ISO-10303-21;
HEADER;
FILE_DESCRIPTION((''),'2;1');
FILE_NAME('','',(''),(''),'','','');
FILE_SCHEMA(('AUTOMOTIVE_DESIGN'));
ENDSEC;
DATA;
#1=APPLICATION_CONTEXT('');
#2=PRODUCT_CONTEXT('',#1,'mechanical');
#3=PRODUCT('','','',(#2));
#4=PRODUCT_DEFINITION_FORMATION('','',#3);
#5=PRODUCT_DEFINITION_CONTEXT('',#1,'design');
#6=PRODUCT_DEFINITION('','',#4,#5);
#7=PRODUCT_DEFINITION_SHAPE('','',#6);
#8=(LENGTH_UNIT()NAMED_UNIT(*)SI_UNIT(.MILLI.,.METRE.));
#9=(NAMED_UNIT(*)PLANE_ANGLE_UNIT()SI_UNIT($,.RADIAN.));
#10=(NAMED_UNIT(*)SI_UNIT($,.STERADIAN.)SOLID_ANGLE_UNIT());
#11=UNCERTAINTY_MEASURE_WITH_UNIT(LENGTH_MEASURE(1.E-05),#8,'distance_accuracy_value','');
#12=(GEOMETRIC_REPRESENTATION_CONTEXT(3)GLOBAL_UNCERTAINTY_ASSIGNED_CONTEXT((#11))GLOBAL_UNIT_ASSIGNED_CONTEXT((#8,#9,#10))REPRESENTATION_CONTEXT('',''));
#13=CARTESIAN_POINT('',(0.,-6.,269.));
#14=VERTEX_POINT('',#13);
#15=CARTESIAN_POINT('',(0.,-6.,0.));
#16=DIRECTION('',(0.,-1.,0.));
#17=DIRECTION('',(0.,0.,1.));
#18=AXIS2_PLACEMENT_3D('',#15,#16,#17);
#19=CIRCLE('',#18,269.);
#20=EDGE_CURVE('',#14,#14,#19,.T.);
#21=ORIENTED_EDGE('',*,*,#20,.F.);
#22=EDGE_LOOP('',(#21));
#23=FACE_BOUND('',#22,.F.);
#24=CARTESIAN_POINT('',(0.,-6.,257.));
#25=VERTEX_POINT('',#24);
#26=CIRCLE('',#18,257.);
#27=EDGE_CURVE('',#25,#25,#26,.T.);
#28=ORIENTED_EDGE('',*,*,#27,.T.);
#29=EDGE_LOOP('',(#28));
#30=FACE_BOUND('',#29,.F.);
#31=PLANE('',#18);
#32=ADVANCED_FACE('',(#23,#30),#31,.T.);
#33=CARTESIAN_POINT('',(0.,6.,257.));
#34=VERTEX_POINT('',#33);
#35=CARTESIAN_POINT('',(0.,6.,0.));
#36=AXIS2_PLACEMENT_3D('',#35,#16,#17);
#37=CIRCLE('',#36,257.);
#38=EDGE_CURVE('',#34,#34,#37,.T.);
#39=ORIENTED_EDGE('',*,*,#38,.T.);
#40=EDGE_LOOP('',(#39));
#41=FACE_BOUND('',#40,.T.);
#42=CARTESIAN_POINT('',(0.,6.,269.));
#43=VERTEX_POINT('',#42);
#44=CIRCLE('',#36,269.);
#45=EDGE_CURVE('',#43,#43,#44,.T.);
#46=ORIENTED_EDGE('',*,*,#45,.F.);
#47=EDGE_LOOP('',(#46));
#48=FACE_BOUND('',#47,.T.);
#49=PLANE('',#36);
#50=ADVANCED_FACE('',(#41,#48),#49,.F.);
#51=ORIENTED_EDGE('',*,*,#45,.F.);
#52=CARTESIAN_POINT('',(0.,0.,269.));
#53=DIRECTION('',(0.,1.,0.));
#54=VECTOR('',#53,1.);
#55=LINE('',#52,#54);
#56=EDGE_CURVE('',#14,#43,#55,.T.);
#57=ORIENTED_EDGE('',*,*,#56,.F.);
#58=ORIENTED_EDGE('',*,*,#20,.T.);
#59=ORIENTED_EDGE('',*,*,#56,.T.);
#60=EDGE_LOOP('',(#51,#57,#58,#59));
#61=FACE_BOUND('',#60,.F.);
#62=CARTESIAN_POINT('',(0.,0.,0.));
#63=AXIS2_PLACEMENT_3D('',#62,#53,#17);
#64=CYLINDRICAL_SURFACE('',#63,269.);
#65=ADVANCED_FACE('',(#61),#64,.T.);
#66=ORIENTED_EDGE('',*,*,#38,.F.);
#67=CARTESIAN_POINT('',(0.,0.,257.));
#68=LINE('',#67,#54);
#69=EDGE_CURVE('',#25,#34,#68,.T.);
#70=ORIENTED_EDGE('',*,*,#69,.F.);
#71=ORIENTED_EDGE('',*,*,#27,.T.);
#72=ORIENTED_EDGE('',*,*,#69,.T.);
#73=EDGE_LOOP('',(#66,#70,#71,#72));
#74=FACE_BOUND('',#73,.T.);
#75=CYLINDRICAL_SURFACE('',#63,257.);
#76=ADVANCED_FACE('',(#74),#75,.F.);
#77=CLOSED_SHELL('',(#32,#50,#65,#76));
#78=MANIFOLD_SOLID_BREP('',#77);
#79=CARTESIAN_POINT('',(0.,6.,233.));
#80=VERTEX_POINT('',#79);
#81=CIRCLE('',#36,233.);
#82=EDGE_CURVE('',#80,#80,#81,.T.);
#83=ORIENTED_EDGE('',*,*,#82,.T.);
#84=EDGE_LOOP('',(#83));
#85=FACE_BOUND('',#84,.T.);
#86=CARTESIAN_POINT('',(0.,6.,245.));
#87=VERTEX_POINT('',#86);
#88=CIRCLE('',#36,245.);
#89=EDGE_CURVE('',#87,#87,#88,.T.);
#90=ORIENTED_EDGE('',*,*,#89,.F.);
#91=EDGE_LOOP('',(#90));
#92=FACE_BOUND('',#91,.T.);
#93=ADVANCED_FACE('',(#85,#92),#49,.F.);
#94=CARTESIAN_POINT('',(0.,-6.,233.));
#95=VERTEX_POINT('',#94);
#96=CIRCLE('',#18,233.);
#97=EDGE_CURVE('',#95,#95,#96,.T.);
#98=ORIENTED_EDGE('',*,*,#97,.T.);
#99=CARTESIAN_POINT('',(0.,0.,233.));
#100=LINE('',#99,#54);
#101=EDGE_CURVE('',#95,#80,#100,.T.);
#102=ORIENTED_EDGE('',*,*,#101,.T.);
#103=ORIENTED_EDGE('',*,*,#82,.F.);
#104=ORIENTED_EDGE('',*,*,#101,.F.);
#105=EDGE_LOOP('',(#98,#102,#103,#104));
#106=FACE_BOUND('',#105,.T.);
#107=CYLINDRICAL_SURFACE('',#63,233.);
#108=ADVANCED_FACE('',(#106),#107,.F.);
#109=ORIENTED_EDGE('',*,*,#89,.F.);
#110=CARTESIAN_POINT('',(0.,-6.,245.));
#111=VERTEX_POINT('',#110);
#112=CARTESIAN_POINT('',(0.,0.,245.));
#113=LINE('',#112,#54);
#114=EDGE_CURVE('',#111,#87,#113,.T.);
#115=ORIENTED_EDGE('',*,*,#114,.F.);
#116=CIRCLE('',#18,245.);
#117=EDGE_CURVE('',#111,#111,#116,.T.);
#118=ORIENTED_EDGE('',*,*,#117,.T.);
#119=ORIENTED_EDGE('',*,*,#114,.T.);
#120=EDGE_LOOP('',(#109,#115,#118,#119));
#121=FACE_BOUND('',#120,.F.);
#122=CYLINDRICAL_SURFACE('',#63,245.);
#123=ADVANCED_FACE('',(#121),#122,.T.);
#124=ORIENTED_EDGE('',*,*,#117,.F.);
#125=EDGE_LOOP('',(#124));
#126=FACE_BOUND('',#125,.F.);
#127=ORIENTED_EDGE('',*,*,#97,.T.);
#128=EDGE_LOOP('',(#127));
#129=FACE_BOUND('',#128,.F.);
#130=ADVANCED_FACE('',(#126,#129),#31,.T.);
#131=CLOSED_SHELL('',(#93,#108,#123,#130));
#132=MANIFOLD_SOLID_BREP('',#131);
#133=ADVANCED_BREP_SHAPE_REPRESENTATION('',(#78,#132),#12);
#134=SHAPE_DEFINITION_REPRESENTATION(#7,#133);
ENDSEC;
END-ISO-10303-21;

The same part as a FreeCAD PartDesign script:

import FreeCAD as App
import Part
import Sketcher
from FreeCAD import Vector
Q = App.Units.Quantity

doc = App.newDocument("Part")
body = doc.addObject("PartDesign::Body", "Body")

# Sketch on YZ plane
sketch1 = body.newObject("Sketcher::SketchObject", "Sketch")
sketch1.AttachmentSupport = (doc.getObject("YZ_Plane"), [""])
sketch1.MapMode = "FlatFace"
sketch1.addGeometry([
    Part.LineSegment(Vector(-6, 269, 0), Vector(-6, 257, 0)),
    Part.LineSegment(Vector(-6, 257, 0), Vector(6, 257, 0)),
    Part.LineSegment(Vector(6, 257, 0), Vector(6, 269, 0)),
    Part.LineSegment(Vector(6, 269, 0), Vector(-6, 269, 0)),
], False)
sketch1.addConstraint([
    Sketcher.Constraint("Coincident", 0, 2, 1, 1),
    Sketcher.Constraint("Coincident", 1, 2, 2, 1),
    Sketcher.Constraint("Coincident", 2, 2, 3, 1),
    Sketcher.Constraint("Coincident", 3, 2, 0, 1),
    Sketcher.Constraint("Vertical", 0),
    Sketcher.Constraint("Horizontal", 1),
    Sketcher.Constraint("Vertical", 2),
    Sketcher.Constraint("Horizontal", 3),
    Sketcher.Constraint("Equal", 3, 0),
    Sketcher.Constraint("DistanceX", 1, 1, 1, 2, Q("12 mm")),
    Sketcher.Constraint("DistanceX", 0, 2, -1, 1, Q("6 mm")),
    Sketcher.Constraint("DistanceY", -1, 1, 0, 2, Q("257 mm")),
])
revolution = body.newObject("PartDesign::Revolution", "Revolution")
revolution.Profile = sketch1
revolution.ReferenceAxis = (sketch1, ["H_Axis"])
revolution.Angle = 360
body2 = doc.addObject("PartDesign::Body", "Body001")

# Sketch on YZ plane
sketch2 = body2.newObject("Sketcher::SketchObject", "Sketch001")
sketch2.AttachmentSupport = (doc.getObject("YZ_Plane001"), [""])
sketch2.MapMode = "FlatFace"
sketch2.addGeometry([
    Part.LineSegment(Vector(-6, 245, 0), Vector(-6, 233, 0)),
    Part.LineSegment(Vector(-6, 233, 0), Vector(6, 233, 0)),
    Part.LineSegment(Vector(6, 233, 0), Vector(6, 245, 0)),
    Part.LineSegment(Vector(6, 245, 0), Vector(-6, 245, 0)),
], False)
sketch2.addConstraint([
    Sketcher.Constraint("Coincident", 0, 2, 1, 1),
    Sketcher.Constraint("Coincident", 1, 2, 2, 1),
    Sketcher.Constraint("Coincident", 2, 2, 3, 1),
    Sketcher.Constraint("Coincident", 3, 2, 0, 1),
    Sketcher.Constraint("Vertical", 0),
    Sketcher.Constraint("Horizontal", 1),
    Sketcher.Constraint("Vertical", 2),
    Sketcher.Constraint("Horizontal", 3),
    Sketcher.Constraint("Equal", 3, 0),
    Sketcher.Constraint("DistanceX", 1, 1, 1, 2, Q("12 mm")),
    Sketcher.Constraint("DistanceX", 0, 2, -1, 1, Q("6 mm")),
    Sketcher.Constraint("DistanceY", -1, 1, 0, 2, Q("233 mm")),
])
revolution2 = body2.newObject("PartDesign::Revolution", "Revolution001")
revolution2.Profile = sketch2
revolution2.ReferenceAxis = (sketch2, ["H_Axis"])
revolution2.Angle = 360

doc.recompute()
